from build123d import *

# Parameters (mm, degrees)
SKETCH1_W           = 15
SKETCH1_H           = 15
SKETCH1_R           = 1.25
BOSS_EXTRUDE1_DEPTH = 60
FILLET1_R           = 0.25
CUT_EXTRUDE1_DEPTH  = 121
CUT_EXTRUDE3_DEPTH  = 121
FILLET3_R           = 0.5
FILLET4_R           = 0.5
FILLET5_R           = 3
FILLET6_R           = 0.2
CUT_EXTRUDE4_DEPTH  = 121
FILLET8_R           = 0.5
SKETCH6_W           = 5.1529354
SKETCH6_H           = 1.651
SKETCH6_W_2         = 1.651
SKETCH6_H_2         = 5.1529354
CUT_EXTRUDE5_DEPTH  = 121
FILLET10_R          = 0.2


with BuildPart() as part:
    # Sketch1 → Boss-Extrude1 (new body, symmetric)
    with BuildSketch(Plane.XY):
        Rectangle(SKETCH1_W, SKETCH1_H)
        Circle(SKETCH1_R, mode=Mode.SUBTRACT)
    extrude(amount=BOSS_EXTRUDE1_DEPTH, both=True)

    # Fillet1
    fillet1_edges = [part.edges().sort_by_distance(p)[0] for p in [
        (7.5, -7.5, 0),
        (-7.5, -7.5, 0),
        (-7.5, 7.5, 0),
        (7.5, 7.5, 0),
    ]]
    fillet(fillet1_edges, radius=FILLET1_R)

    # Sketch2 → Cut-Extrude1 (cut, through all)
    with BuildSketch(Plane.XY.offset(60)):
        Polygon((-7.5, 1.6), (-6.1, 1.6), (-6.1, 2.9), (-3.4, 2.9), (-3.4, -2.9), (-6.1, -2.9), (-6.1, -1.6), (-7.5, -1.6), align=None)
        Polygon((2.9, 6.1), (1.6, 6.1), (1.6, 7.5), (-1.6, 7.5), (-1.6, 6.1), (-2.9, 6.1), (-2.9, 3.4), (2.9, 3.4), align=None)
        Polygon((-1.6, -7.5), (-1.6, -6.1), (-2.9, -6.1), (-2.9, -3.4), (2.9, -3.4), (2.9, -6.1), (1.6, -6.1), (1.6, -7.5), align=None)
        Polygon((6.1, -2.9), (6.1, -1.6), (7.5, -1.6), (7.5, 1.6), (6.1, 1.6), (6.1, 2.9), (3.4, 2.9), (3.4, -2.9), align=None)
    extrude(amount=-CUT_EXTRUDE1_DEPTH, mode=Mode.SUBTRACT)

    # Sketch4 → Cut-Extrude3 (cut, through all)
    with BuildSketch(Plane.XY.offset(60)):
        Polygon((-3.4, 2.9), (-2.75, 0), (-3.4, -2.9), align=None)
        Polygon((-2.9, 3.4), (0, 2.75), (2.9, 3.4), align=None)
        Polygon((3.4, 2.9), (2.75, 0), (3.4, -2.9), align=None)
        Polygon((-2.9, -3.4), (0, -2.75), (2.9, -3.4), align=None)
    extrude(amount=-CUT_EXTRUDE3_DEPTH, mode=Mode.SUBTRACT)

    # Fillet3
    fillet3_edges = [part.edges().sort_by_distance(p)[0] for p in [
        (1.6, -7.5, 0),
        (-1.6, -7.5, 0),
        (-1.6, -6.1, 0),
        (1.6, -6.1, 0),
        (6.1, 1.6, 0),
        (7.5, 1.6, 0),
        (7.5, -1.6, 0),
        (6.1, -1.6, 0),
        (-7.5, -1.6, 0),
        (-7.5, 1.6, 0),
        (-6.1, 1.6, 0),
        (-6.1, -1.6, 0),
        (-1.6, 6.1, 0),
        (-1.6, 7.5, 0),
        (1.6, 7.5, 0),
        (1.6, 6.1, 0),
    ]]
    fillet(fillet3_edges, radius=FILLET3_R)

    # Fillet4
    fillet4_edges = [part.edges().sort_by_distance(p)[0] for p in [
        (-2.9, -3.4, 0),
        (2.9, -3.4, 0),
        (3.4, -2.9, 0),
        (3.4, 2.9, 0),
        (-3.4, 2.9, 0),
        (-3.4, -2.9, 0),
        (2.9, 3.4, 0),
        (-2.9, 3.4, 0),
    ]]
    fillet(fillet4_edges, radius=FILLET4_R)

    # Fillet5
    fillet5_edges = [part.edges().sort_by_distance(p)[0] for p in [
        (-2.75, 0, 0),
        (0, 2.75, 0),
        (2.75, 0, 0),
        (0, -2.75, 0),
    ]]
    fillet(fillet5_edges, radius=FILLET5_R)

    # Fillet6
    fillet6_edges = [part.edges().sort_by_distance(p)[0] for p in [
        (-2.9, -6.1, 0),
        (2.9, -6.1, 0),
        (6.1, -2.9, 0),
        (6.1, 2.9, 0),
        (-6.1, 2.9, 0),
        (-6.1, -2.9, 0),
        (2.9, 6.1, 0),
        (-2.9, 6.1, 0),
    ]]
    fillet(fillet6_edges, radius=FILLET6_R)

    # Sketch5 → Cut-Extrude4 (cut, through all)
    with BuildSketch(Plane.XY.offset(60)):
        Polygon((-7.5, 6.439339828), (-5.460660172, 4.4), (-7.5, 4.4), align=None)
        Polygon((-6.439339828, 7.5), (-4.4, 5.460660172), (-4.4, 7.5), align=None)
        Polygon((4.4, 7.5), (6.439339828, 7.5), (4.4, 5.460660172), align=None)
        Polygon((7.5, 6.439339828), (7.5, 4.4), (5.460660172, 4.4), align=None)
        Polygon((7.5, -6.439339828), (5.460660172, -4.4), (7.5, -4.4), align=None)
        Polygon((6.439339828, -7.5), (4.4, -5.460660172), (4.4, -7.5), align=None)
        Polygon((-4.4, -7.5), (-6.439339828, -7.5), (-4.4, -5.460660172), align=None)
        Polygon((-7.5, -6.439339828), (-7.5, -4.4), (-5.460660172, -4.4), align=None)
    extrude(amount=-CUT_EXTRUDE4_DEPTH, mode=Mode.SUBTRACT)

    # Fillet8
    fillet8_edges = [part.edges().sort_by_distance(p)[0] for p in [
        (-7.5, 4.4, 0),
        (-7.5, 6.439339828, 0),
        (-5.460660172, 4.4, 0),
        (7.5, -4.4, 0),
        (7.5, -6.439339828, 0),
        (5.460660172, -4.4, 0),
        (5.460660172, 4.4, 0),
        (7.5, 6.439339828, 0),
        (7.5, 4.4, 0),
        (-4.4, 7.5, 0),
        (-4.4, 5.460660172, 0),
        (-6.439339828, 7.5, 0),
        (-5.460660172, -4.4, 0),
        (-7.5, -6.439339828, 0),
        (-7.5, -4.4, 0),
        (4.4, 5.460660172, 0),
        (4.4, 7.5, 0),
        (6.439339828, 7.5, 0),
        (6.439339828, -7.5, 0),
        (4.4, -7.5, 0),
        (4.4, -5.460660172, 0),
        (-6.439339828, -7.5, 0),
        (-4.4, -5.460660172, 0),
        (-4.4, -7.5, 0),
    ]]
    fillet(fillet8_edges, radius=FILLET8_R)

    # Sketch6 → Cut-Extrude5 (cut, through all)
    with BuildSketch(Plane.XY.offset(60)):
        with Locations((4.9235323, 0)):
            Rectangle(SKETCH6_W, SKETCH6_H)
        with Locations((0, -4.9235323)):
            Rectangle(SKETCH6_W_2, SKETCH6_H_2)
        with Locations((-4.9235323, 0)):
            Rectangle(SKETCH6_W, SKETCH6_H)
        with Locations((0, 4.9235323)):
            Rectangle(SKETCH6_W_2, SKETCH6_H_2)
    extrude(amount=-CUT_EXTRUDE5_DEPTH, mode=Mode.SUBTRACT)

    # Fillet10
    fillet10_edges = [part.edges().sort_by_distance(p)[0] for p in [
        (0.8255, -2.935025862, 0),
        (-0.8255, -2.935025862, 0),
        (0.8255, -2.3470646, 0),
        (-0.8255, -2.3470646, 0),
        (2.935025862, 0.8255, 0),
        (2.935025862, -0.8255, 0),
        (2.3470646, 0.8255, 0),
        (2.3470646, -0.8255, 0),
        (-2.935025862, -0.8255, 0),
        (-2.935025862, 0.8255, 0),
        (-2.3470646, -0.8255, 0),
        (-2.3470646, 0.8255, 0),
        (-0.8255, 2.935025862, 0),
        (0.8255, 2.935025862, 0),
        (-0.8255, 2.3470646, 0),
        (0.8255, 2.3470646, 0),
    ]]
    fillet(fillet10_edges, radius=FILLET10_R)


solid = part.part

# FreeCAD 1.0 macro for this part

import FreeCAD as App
import Part
import Sketcher
from FreeCAD import Vector
Q = App.Units.Quantity


def edges_at(feature, points):
    """Names of the edges that pass closest to the given points."""
    edges = feature.Shape.Edges
    near = lambda p: min(range(len(edges)), key=lambda i: edges[i].distToShape(Part.Vertex(*p))[0])
    return sorted({f"Edge{near(p) + 1}" for p in points})


def add_polygon(sketch, points):
    """Adds a closed chain of lines whose ends are joined by coincident constraints."""
    first, n = sketch.GeometryCount, len(points)
    for a, b in zip(points, points[1:] + points[:1]):
        sketch.addGeometry(Part.LineSegment(App.Vector(*a, 0), App.Vector(*b, 0)), False)
    for i in range(n):
        sketch.addConstraint(Sketcher.Constraint("Coincident", first + i, 2, first + (i + 1) % n, 1))

doc = App.newDocument("Part")
params = doc.addObject("Spreadsheet::Sheet", "Params")
for row, (alias, value) in enumerate([
    ("sketch1_diameter", "2.5 mm"),
    ("sketch1_width", "15 mm"),
    ("pad1_length", "120 mm"),
    ("fillet_radius", "0.25 mm"),
    ("sketch2_width", "1.4 mm"),
    ("sketch2_width2", "2.7 mm"),
    ("sketch2_width3", "1.3 mm"),
    ("sketch2_width4", "3.2 mm"),
    ("sketch3_width", "5.8 mm"),
    ("fillet2_radius", "0.5 mm"),
    ("fillet3_radius", "0.5 mm"),
    ("fillet4_radius", "3 mm"),
    ("fillet5_radius", "0.2 mm"),
    ("fillet6_radius", "0.5 mm"),
    ("fillet7_radius", "0.2 mm"),
], start=1):
    params.set(f"A{row}", alias)
    params.set(f"B{row}", "=" + value)
    params.setAlias(f"B{row}", alias)

body = doc.addObject("PartDesign::Body", "Body")

# Sketch on XY plane
sketch1 = body.newObject("Sketcher::SketchObject", "Sketch")
sketch1.AttachmentSupport = (doc.getObject("XY_Plane"), [""])
sketch1.MapMode = "FlatFace"
add_polygon(sketch1, [(-7.5, 7.5), (-7.5, -7.5), (7.5, -7.5), (7.5, 7.5)])  # lines 0-3
sketch1.addGeometry(Part.Circle(Vector(0, 0, 0), Vector(0, 0, 1), 1.2), False)  # 4
sketch1.addConstraint([
    Sketcher.Constraint("Vertical", 0),
    Sketcher.Constraint("Horizontal", 1),
    Sketcher.Constraint("Vertical", 2),
    Sketcher.Constraint("Horizontal", 3),
    Sketcher.Constraint("Coincident", 4, 3, -1, 1),
    Sketcher.Constraint("Symmetric", 0, 2, 2, 2, -1, 1),
    Sketcher.Constraint("Equal", 3, 0),
    Sketcher.Constraint("Diameter", 4, Q("2.5 mm")),
    Sketcher.Constraint("DistanceX", 1, 1, 1, 2, Q("15 mm")),
])
sketch1.setExpression("Constraints[11]", "Params.sketch1_diameter")
sketch1.setExpression("Constraints[12]", "Params.sketch1_width")
pad1 = body.newObject("PartDesign::Pad", "Pad")
pad1.Profile = sketch1
pad1.setExpression("Length", "Params.pad1_length")
pad1.Midplane = True
doc.recompute()

fillet = body.newObject("PartDesign::Fillet", "Fillet")
fillet.Base = (pad1, edges_at(pad1, [
    (7.5, -7.5, 0),
    (-7.5, -7.5, 0),
    (-7.5, 7.5, 0),
    (7.5, 7.5, 0),
]))
fillet.setExpression("Radius", "Params.fillet_radius")

# Sketch on XY plane
sketch2 = body.newObject("Sketcher::SketchObject", "Sketch001")
sketch2.AttachmentSupport = (doc.getObject("XY_Plane"), [""])
sketch2.MapMode = "FlatFace"
sketch2.AttachmentOffset = App.Placement(Vector(0, 0, 60), App.Rotation())
add_polygon(sketch2, [(-6.1, 1.6), (-7.5, 1.6), (-7.5, -1.6), (-6.1, -1.6), (-6.1, -2.9), (-3.4, -2.9), (-3.4, 2.9), (-6.1, 2.9)])  # lines 0-7
add_polygon(sketch2, [(2.9, 6.1), (1.6, 6.1), (1.6, 7.5), (-1.6, 7.5), (-1.6, 6.1), (-2.9, 6.1), (-2.9, 3.4), (2.9, 3.4)])  # lines 8-15
add_polygon(sketch2, [(-1.6, -6.1), (-1.6, -7.5), (1.6, -7.5), (1.6, -6.1), (2.9, -6.1), (2.9, -3.4), (-2.9, -3.4), (-2.9, -6.1)])  # lines 16-23
add_polygon(sketch2, [(6.1, -2.9), (6.1, -1.6), (7.5, -1.6), (7.5, 1.6), (6.1, 1.6), (6.1, 2.9), (3.4, 2.9), (3.4, -2.9)])  # lines 24-31
sketch2.addConstraint([
    Sketcher.Constraint("Horizontal", 0),
    Sketcher.Constraint("Vertical", 1),
    Sketcher.Constraint("Horizontal", 2),
    Sketcher.Constraint("Vertical", 3),
    Sketcher.Constraint("Horizontal", 4),
    Sketcher.Constraint("Vertical", 5),
    Sketcher.Constraint("Horizontal", 6),
    Sketcher.Constraint("Vertical", 7),
    Sketcher.Constraint("Horizontal", 8),
    Sketcher.Constraint("Vertical", 9),
    Sketcher.Constraint("Horizontal", 10),
    Sketcher.Constraint("Vertical", 11),
    Sketcher.Constraint("Horizontal", 12),
    Sketcher.Constraint("Vertical", 13),
    Sketcher.Constraint("Horizontal", 14),
    Sketcher.Constraint("Vertical", 15),
    Sketcher.Constraint("Vertical", 16),
    Sketcher.Constraint("Horizontal", 17),
    Sketcher.Constraint("Vertical", 18),
    Sketcher.Constraint("Horizontal", 19),
    Sketcher.Constraint("Vertical", 20),
    Sketcher.Constraint("Horizontal", 21),
    Sketcher.Constraint("Vertical", 22),
    Sketcher.Constraint("Horizontal", 23),
    Sketcher.Constraint("Vertical", 24),
    Sketcher.Constraint("Horizontal", 25),
    Sketcher.Constraint("Vertical", 26),
    Sketcher.Constraint("Horizontal", 27),
    Sketcher.Constraint("Vertical", 28),
    Sketcher.Constraint("Horizontal", 29),
    Sketcher.Constraint("Vertical", 30),
    Sketcher.Constraint("Horizontal", 31),
    Sketcher.Constraint("Symmetric", 9, 2, 16, 2, -1, 1),
    Sketcher.Constraint("Symmetric", 11, 2, 18, 2, -1, 1),
    Sketcher.Constraint("Symmetric", 13, 2, 20, 2, -1, 1),
    Sketcher.Constraint("Symmetric", 15, 2, 22, 2, -1, 1),
    Sketcher.Constraint("Symmetric", 7, 2, 24, 2, -1, 1),
    Sketcher.Constraint("Symmetric", 1, 2, 26, 2, -1, 1),
    Sketcher.Constraint("Symmetric", 3, 2, 28, 2, -1, 1),
    Sketcher.Constraint("Symmetric", 5, 2, 30, 2, -1, 1),
    Sketcher.Constraint("Symmetric", 8, 2, 11, 2, -2),
    Sketcher.Constraint("Symmetric", 2, 2, 24, 2, -2),
    Sketcher.Constraint("Horizontal", 6, 2, 28, 2),
    Sketcher.Constraint("Vertical", 15, 2, 19, 2),
    Sketcher.Constraint("Equal", 17, 1),
    Sketcher.Constraint("Equal", 23, 3),
    Sketcher.Constraint("Equal", 27, 9),
    Sketcher.Constraint("Equal", 31, 13),
    Sketcher.Constraint("DistanceX", 0, 2, 0, 1, Q("1.4 mm")),
    Sketcher.Constraint("DistanceX", 4, 1, 4, 2, Q("2.7 mm")),
    Sketcher.Constraint("DistanceX", 8, 2, 8, 1, Q("1.3 mm")),
    Sketcher.Constraint("DistanceX", 10, 2, 10, 1, Q("3.2 mm")),
    Sketcher.Constraint("DistanceX", 5, 2, 8, 2, Q("5 mm")),
    Sketcher.Constraint("DistanceY", 4, 2, 8, 2, Q("9 mm")),
])
sketch2.setExpression("Constraints[80]", "Params.sketch2_width")
sketch2.setExpression("Constraints[81]", "Params.sketch2_width2")
sketch2.setExpression("Constraints[82]", "Params.sketch2_width3")
sketch2.setExpression("Constraints[83]", "Params.sketch2_width4")
pocket1 = body.newObject("PartDesign::Pocket", "Pocket")
pocket1.Profile = sketch2
pocket1.Type = "ThroughAll"

# Sketch on XY plane
sketch3 = body.newObject("Sketcher::SketchObject", "Sketch002")
sketch3.AttachmentSupport = (doc.getObject("XY_Plane"), [""])
sketch3.MapMode = "FlatFace"
sketch3.AttachmentOffset = App.Placement(Vector(0, 0, 60), App.Rotation())
add_polygon(sketch3, [(-2.8, 0), (-3.4, 2.9), (-3.4, -2.9)])  # lines 0-2
add_polygon(sketch3, [(-2.9, 3.4), (0, 2.8), (2.9, 3.4)])  # lines 3-5
add_polygon(sketch3, [(3.4, 2.9), (2.8, 0), (3.4, -2.9)])  # lines 6-8
add_polygon(sketch3, [(0, -2.8), (-2.9, -3.4), (2.9, -3.4)])  # lines 9-11
sketch3.addConstraint([
    Sketcher.Constraint("Vertical", 1),
    Sketcher.Constraint("Horizontal", 5),
    Sketcher.Constraint("Vertical", 8),
    Sketcher.Constraint("Horizontal", 10),
    Sketcher.Constraint("Symmetric", 2, 2, 6, 2, -1, 1),
    Sketcher.Constraint("Symmetric", 0, 2, 7, 2, -1, 1),
    Sketcher.Constraint("Symmetric", 4, 2, 9, 2, -1, 1),
    Sketcher.Constraint("Symmetric", 3, 2, 11, 2, -1, 1),
    Sketcher.Constraint("PointOnObject", 2, 2, -1),
    Sketcher.Constraint("PointOnObject", 3, 2, -2),
    Sketcher.Constraint("Perpendicular", 2, 3),
    Sketcher.Constraint("Perpendicular", 0, 4),
    Sketcher.Constraint("Perpendicular", 3, 6),
    Sketcher.Constraint("Perpendicular", 6, 11),
    Sketcher.Constraint("Horizontal", 1, 2, 7, 2),
    Sketcher.Constraint("Equal", 10, 1),
    Sketcher.Constraint("DistanceX", 5, 2, 5, 1, Q("5.8 mm")),
    Sketcher.Constraint("DistanceX", 0, 2, -1, 1, Q("3.4 mm")),
    Sketcher.Constraint("DistanceY", -1, 1, 4, 2, Q("3.4 mm")),
    Sketcher.Constraint("DistanceX", 2, 2, 6, 2, Q("5.5 mm")),
])
sketch3.setExpression("Constraints[28]", "Params.sketch3_width")
pocket2 = body.newObject("PartDesign::Pocket", "Pocket001")
pocket2.Profile = sketch3
pocket2.Type = "ThroughAll"
doc.recompute()

fillet2 = body.newObject("PartDesign::Fillet", "Fillet001")
fillet2.Base = (pocket2, edges_at(pocket2, [
    (1.6, -7.5, 0),
    (-1.6, -7.5, 0),
    (-1.6, -6.1, 0),
    (1.6, -6.1, 0),
    (6.1, 1.6, 0),
    (7.5, 1.6, 0),
    (7.5, -1.6, 0),
    (6.1, -1.6, 0),
    (-7.5, -1.6, 0),
    (-7.5, 1.6, 0),
    (-6.1, 1.6, 0),
    (-6.1, -1.6, 0),
    (-1.6, 6.1, 0),
    (-1.6, 7.5, 0),
    (1.6, 7.5, 0),
    (1.6, 6.1, 0),
]))
fillet2.setExpression("Radius", "Params.fillet2_radius")
doc.recompute()

fillet3 = body.newObject("PartDesign::Fillet", "Fillet002")
fillet3.Base = (fillet2, edges_at(fillet2, [
    (-2.9, -3.4, 0),
    (2.9, -3.4, 0),
    (3.4, -2.9, 0),
    (3.4, 2.9, 0),
    (-3.4, 2.9, 0),
    (-3.4, -2.9, 0),
    (2.9, 3.4, 0),
    (-2.9, 3.4, 0),
]))
fillet3.setExpression("Radius", "Params.fillet3_radius")
doc.recompute()

fillet4 = body.newObject("PartDesign::Fillet", "Fillet003")
fillet4.Base = (fillet3, edges_at(fillet3, [
    (-2.75, 0, 0),
    (0, 2.75, 0),
    (2.75, 0, 0),
    (0, -2.75, 0),
]))
fillet4.setExpression("Radius", "Params.fillet4_radius")
doc.recompute()

fillet5 = body.newObject("PartDesign::Fillet", "Fillet004")
fillet5.Base = (fillet4, edges_at(fillet4, [
    (-2.9, -6.1, 0),
    (2.9, -6.1, 0),
    (6.1, -2.9, 0),
    (6.1, 2.9, 0),
    (-6.1, 2.9, 0),
    (-6.1, -2.9, 0),
    (2.9, 6.1, 0),
    (-2.9, 6.1, 0),
]))
fillet5.setExpression("Radius", "Params.fillet5_radius")

# Sketch on XY plane
sketch4 = body.newObject("Sketcher::SketchObject", "Sketch003")
sketch4.AttachmentSupport = (doc.getObject("XY_Plane"), [""])
sketch4.MapMode = "FlatFace"
sketch4.AttachmentOffset = App.Placement(Vector(0, 0, 60), App.Rotation())
add_polygon(sketch4, [(-5.5, 4.4), (-7.5, 6.4), (-7.5, 4.4)])  # lines 0-2
add_polygon(sketch4, [(-6.4, 7.5), (-4.4, 5.5), (-4.4, 7.5)])  # lines 3-5
add_polygon(sketch4, [(6.4, 7.5), (4.4, 7.5), (4.4, 5.5)])  # lines 6-8
add_polygon(sketch4, [(7.5, 4.4), (7.5, 6.4), (5.5, 4.4)])  # lines 9-11
add_polygon(sketch4, [(5.5, -4.4), (7.5, -6.4), (7.5, -4.4)])  # lines 12-14
add_polygon(sketch4, [(6.4, -7.5), (4.4, -5.5), (4.4, -7.5)])  # lines 15-17
add_polygon(sketch4, [(-6.4, -7.5), (-4.4, -7.5), (-4.4, -5.5)])  # lines 18-20
add_polygon(sketch4, [(-7.5, -4.4), (-7.5, -6.4), (-5.5, -4.4)])  # lines 21-23
sketch4.addConstraint([
    Sketcher.Constraint("Vertical", 1),
    Sketcher.Constraint("Horizontal", 2),
    Sketcher.Constraint("Vertical", 4),
    Sketcher.Constraint("Horizontal", 5),
    Sketcher.Constraint("Horizontal", 6),
    Sketcher.Constraint("Vertical", 7),
    Sketcher.Constraint("Vertical", 9),
    Sketcher.Constraint("Horizontal", 11),
    Sketcher.Constraint("Vertical", 13),
    Sketcher.Constraint("Horizontal", 14),
    Sketcher.Constraint("Vertical", 16),
    Sketcher.Constraint("Horizontal", 17),
    Sketcher.Constraint("Horizontal", 18),
    Sketcher.Constraint("Vertical", 19),
    Sketcher.Constraint("Vertical", 21),
    Sketcher.Constraint("Horizontal", 23),
    Sketcher.Constraint("Symmetric", 0, 2, 12, 2, -1, 1),
    Sketcher.Constraint("Symmetric", 2, 2, 14, 2, -1, 1),
    Sketcher.Constraint("Symmetric", 3, 2, 15, 2, -1, 1),
    Sketcher.Constraint("Symmetric", 5, 2, 17, 2, -1, 1),
    Sketcher.Constraint("Symmetric", 6, 2, 18, 2, -1, 1),
    Sketcher.Constraint("Symmetric", 9, 2, 21, 2, -1, 1),
    Sketcher.Constraint("Symmetric", 10, 2, 22, 2, -1, 1),
    Sketcher.Constraint("Symmetric", 4, 2, 6, 2, -2),
    Sketcher.Constraint("Symmetric", 0, 2, 9, 2, -2),
    Sketcher.Constraint("Symmetric", 2, 2, 10, 2, -2),
    Sketcher.Constraint("Parallel", 0, 3),
    Sketcher.Constraint("Perpendicular", 3, 8),
    Sketcher.Constraint("Parallel", 8, 10),
    Sketcher.Constraint("Perpendicular", 15, 20),
    Sketcher.Constraint("Horizontal", 3, 2, 7, 2),
    Sketcher.Constraint("Horizontal", 15, 2, 19, 2),
    Sketcher.Constraint("Equal", 2, 5),
    Sketcher.Constraint("DistanceX", 0, 2, -1, 1, Q("7.5 mm")),
    Sketcher.Constraint("DistanceY", -1, 1, 1, 2, Q("4.4 mm")),
    Sketcher.Constraint("DistanceX", 3, 2, -1, 1, Q("4.4 mm")),
    Sketcher.Constraint("DistanceY", -1, 1, 4, 2, Q("7.5 mm")),
    Sketcher.Constraint("DistanceX", 2, 1, 2, 2, Q("2.03934 mm")),
])
pocket3 = body.newObject("PartDesign::Pocket", "Pocket002")
pocket3.Profile = sketch4
pocket3.Type = "ThroughAll"
doc.recompute()

fillet6 = body.newObject("PartDesign::Fillet", "Fillet005")
fillet6.Base = (pocket3, edges_at(pocket3, [
    (-7.5, 4.4, 0),
    (-7.5, 6.439, 0),
    (-5.461, 4.4, 0),
    (7.5, -4.4, 0),
    (7.5, -6.439, 0),
    (5.461, -4.4, 0),
    (5.461, 4.4, 0),
    (7.5, 6.439, 0),
    (7.5, 4.4, 0),
    (-4.4, 7.5, 0),
    (-4.4, 5.461, 0),
    (-6.439, 7.5, 0),
    (-5.461, -4.4, 0),
    (-7.5, -6.439, 0),
    (-7.5, -4.4, 0),
    (4.4, 5.461, 0),
    (4.4, 7.5, 0),
    (6.439, 7.5, 0),
    (6.439, -7.5, 0),
    (4.4, -7.5, 0),
    (4.4, -5.461, 0),
    (-6.439, -7.5, 0),
    (-4.4, -5.461, 0),
    (-4.4, -7.5, 0),
]))
fillet6.setExpression("Radius", "Params.fillet6_radius")

# Sketch on XY plane
sketch5 = body.newObject("Sketcher::SketchObject", "Sketch004")
sketch5.AttachmentSupport = (doc.getObject("XY_Plane"), [""])
sketch5.MapMode = "FlatFace"
sketch5.AttachmentOffset = App.Placement(Vector(0, 0, 60), App.Rotation())
add_polygon(sketch5, [(2.3, 0.8), (2.3, -0.8), (7.5, -0.8), (7.5, 0.8)])  # lines 0-3
add_polygon(sketch5, [(-0.8, -2.3), (-0.8, -7.5), (0.8, -7.5), (0.8, -2.3)])  # lines 4-7
add_polygon(sketch5, [(-7.5, 0.8), (-7.5, -0.8), (-2.3, -0.8), (-2.3, 0.8)])  # lines 8-11
add_polygon(sketch5, [(-0.8, 7.5), (-0.8, 2.3), (0.8, 2.3), (0.8, 7.5)])  # lines 12-15
sketch5.addConstraint([
    Sketcher.Constraint("Vertical", 0),
    Sketcher.Constraint("Horizontal", 1),
    Sketcher.Constraint("Vertical", 2),
    Sketcher.Constraint("Horizontal", 3),
    Sketcher.Constraint("Vertical", 4),
    Sketcher.Constraint("Horizontal", 5),
    Sketcher.Constraint("Vertical", 6),
    Sketcher.Constraint("Horizontal", 7),
    Sketcher.Constraint("Vertical", 8),
    Sketcher.Constraint("Horizontal", 9),
    Sketcher.Constraint("Vertical", 10),
    Sketcher.Constraint("Horizontal", 11),
    Sketcher.Constraint("Vertical", 12),
    Sketcher.Constraint("Horizontal", 13),
    Sketcher.Constraint("Vertical", 14),
    Sketcher.Constraint("Horizontal", 15),
    Sketcher.Constraint("Symmetric", 2, 2, 8, 2, -1, 1),
    Sketcher.Constraint("Symmetric", 0, 2, 10, 2, -1, 1),
    Sketcher.Constraint("Symmetric", 6, 2, 12, 2, -1, 1),
    Sketcher.Constraint("Symmetric", 4, 2, 14, 2, -1, 1),
    Sketcher.Constraint("Horizontal", 1, 2, 8, 2),
    Sketcher.Constraint("Vertical", 7, 2, 12, 2),
    Sketcher.Constraint("Equal", 15, 0),
    Sketcher.Constraint("Equal", 11, 4),
    Sketcher.Constraint("DistanceX", -1, 1, 1, 2, Q("7.5 mm")),
    Sketcher.Constraint("DistanceY", 4, 2, -1, 1, Q("7.5 mm")),
    Sketcher.Constraint("DistanceX", 5, 1, 5, 2, Q("1.651 mm")),
    Sketcher.Constraint("DistanceX", 1, 1, 1, 2, Q("5.152935 mm")),
])
pocket4 = body.newObject("PartDesign::Pocket", "Pocket003")
pocket4.Profile = sketch5
pocket4.Type = "ThroughAll"
doc.recompute()

fillet7 = body.newObject("PartDesign::Fillet", "Fillet006")
fillet7.Base = (pocket4, edges_at(pocket4, [
    (0.826, -2.935, 0),
    (-0.826, -2.935, 0),
    (0.826, -2.347, 0),
    (-0.826, -2.347, 0),
    (2.935, 0.826, 0),
    (2.935, -0.826, 0),
    (2.347, 0.826, 0),
    (2.347, -0.826, 0),
    (-2.935, -0.826, 0),
    (-2.935, 0.826, 0),
    (-2.347, -0.826, 0),
    (-2.347, 0.826, 0),
    (-0.826, 2.935, 0),
    (0.826, 2.935, 0),
    (-0.826, 2.347, 0),
    (0.826, 2.347, 0),
]))
fillet7.setExpression("Radius", "Params.fillet7_radius")

doc.recompute()
